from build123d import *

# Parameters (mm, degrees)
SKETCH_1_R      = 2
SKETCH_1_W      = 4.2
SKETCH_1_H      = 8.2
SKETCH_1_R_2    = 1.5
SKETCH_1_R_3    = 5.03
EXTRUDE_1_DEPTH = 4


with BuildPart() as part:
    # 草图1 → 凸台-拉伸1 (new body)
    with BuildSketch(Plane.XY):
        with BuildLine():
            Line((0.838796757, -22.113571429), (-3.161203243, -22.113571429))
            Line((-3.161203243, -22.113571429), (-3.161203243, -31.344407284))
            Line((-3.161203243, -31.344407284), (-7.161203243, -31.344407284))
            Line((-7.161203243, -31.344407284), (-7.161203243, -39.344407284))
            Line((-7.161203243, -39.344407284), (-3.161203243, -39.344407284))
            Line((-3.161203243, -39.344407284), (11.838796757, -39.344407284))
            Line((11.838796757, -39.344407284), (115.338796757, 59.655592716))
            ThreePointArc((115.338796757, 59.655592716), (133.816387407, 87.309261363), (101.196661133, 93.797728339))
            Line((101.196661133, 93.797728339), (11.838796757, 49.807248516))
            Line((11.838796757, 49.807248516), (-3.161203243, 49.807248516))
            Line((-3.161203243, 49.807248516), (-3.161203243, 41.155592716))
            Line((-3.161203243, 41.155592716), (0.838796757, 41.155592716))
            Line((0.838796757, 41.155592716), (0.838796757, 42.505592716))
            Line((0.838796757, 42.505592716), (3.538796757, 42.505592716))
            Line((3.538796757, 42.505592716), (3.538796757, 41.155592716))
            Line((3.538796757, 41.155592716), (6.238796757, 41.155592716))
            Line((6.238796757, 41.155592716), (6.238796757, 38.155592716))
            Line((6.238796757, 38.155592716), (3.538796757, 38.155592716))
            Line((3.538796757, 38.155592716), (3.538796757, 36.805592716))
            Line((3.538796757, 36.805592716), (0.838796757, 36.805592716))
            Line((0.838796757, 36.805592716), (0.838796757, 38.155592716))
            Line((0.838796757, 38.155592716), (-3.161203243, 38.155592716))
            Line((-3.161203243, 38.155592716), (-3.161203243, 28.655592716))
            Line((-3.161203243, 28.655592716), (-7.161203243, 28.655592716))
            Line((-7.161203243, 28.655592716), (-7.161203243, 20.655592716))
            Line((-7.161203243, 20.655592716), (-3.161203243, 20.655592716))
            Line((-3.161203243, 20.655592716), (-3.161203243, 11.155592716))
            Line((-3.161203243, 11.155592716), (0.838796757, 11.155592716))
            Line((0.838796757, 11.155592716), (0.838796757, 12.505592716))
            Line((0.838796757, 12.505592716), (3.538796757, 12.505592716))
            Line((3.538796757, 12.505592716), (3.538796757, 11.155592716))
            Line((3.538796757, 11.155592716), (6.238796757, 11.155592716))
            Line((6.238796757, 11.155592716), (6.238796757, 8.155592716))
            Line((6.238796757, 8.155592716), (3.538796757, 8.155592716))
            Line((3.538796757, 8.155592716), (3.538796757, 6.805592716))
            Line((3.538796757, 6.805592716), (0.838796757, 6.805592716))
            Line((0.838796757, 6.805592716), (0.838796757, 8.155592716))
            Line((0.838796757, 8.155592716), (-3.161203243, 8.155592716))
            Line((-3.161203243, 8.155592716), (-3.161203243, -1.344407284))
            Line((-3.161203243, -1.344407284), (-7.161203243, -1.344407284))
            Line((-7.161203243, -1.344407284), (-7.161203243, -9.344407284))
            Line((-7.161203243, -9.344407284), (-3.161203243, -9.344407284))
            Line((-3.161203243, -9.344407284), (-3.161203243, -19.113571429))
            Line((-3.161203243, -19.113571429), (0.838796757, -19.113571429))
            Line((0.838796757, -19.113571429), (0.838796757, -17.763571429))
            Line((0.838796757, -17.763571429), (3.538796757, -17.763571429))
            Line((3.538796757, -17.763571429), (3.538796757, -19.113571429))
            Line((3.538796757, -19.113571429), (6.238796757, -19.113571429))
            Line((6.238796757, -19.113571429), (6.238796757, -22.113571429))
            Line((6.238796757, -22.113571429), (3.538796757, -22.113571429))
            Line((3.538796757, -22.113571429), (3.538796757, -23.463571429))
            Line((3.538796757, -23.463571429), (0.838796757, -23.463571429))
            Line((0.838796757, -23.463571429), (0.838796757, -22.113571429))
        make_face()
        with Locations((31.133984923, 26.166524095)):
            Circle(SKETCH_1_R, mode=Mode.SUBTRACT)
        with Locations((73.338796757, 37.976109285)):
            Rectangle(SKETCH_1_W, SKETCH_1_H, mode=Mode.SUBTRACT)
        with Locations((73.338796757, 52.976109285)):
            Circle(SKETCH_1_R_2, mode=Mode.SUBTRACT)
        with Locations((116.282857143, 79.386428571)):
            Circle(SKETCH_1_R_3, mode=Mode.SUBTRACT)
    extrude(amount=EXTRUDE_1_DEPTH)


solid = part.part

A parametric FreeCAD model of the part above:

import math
import FreeCAD as App
import Part
import Sketcher
from FreeCAD import Vector
Q = App.Units.Quantity

doc = App.newDocument("Part")
body = doc.addObject("PartDesign::Body", "Body")

sketch1 = body.newObject("Sketcher::SketchObject", "Sketch")
sketch1.AttachmentSupport = (doc.getObject("XY_Plane"), [""])
sketch1.MapMode = "FlatFace"
sketch1.addGeometry(Part.LineSegment(Vector(0.8, -22.1, 0), Vector(-3.2, -22.1, 0)), False)
sketch1.addGeometry(Part.LineSegment(Vector(-3.2, -22.1, 0), Vector(-3.2, -31.3, 0)), False)
sketch1.addGeometry(Part.LineSegment(Vector(-3.2, -31.3, 0), Vector(-7.2, -31.3, 0)), False)
sketch1.addGeometry(Part.LineSegment(Vector(-7.2, -31.3, 0), Vector(-7.2, -39.3, 0)), False)
sketch1.addGeometry(Part.LineSegment(Vector(-7.2, -39.3, 0), Vector(11.8, -39.3, 0)), False)
sketch1.addGeometry(Part.LineSegment(Vector(11.8, -39.3, 0), Vector(115.3, 59.7, 0)), False)
sketch1.addGeometry(Part.ArcOfCircle(Part.Circle(Vector(115.3, 79.7, 0), Vector(0, 0, 1), 20), math.radians(-90), math.radians(135)), False)
sketch1.addGeometry(Part.LineSegment(Vector(101.2, 93.8, 0), Vector(11.8, 49.8, 0)), False)
sketch1.addGeometry(Part.LineSegment(Vector(11.8, 49.8, 0), Vector(-3.2, 49.8, 0)), False)
sketch1.addGeometry(Part.LineSegment(Vector(-3.2, 49.8, 0), Vector(-3.2, 41.2, 0)), False)
sketch1.addGeometry(Part.LineSegment(Vector(-3.2, 41.2, 0), Vector(0.8, 41.2, 0)), False)
sketch1.addGeometry(Part.LineSegment(Vector(0.8, 41.2, 0), Vector(0.8, 42.5, 0)), False)
sketch1.addGeometry(Part.LineSegment(Vector(0.8, 42.5, 0), Vector(3.5, 42.5, 0)), False)
sketch1.addGeometry(Part.LineSegment(Vector(3.5, 42.5, 0), Vector(3.5, 41.2, 0)), False)
sketch1.addGeometry(Part.LineSegment(Vector(3.5, 41.2, 0), Vector(6.2, 41.2, 0)), False)
sketch1.addGeometry(Part.LineSegment(Vector(6.2, 41.2, 0), Vector(6.2, 38.2, 0)), False)
sketch1.addGeometry(Part.LineSegment(Vector(6.2, 38.2, 0), Vector(3.5, 38.2, 0)), False)
sketch1.addGeometry(Part.LineSegment(Vector(3.5, 38.2, 0), Vector(3.5, 36.8, 0)), False)
sketch1.addGeometry(Part.LineSegment(Vector(3.5, 36.8, 0), Vector(0.8, 36.8, 0)), False)
sketch1.addGeometry(Part.LineSegment(Vector(0.8, 36.8, 0), Vector(0.8, 38.2, 0)), False)
sketch1.addGeometry(Part.LineSegment(Vector(0.8, 38.2, 0), Vector(-3.2, 38.2, 0)), False)
sketch1.addGeometry(Part.LineSegment(Vector(-3.2, 38.2, 0), Vector(-3.2, 28.7, 0)), False)
sketch1.addGeometry(Part.LineSegment(Vector(-3.2, 28.7, 0), Vector(-7.2, 28.7, 0)), False)
sketch1.addGeometry(Part.LineSegment(Vector(-7.2, 28.7, 0), Vector(-7.2, 20.7, 0)), False)
sketch1.addGeometry(Part.LineSegment(Vector(-7.2, 20.7, 0), Vector(-3.2, 20.7, 0)), False)
sketch1.addGeometry(Part.LineSegment(Vector(-3.2, 20.7, 0), Vector(-3.2, 11.2, 0)), False)
sketch1.addGeometry(Part.LineSegment(Vector(-3.2, 11.2, 0), Vector(0.8, 11.2, 0)), False)
sketch1.addGeometry(Part.LineSegment(Vector(0.8, 11.2, 0), Vector(0.8, 12.5, 0)), False)
sketch1.addGeometry(Part.LineSegment(Vector(0.8, 12.5, 0), Vector(3.5, 12.5, 0)), False)
sketch1.addGeometry(Part.LineSegment(Vector(3.5, 12.5, 0), Vector(3.5, 11.2, 0)), False)
sketch1.addGeometry(Part.LineSegment(Vector(3.5, 11.2, 0), Vector(6.2, 11.2, 0)), False)
sketch1.addGeometry(Part.LineSegment(Vector(6.2, 11.2, 0), Vector(6.2, 8.2, 0)), False)
sketch1.addGeometry(Part.LineSegment(Vector(6.2, 8.2, 0), Vector(3.5, 8.2, 0)), False)
sketch1.addGeometry(Part.LineSegment(Vector(3.5, 8.2, 0), Vector(3.5, 6.8, 0)), False)
sketch1.addGeometry(Part.LineSegment(Vector(3.5, 6.8, 0), Vector(0.8, 6.8, 0)), False)
sketch1.addGeometry(Part.LineSegment(Vector(0.8, 6.8, 0), Vector(0.8, 8.2, 0)), False)
sketch1.addGeometry(Part.LineSegment(Vector(0.8, 8.2, 0), Vector(-3.2, 8.2, 0)), False)
sketch1.addGeometry(Part.LineSegment(Vector(-3.2, 8.2, 0), Vector(-3.2, -1.3, 0)), False)
sketch1.addGeometry(Part.LineSegment(Vector(-3.2, -1.3, 0), Vector(-7.2, -1.3, 0)), False)
sketch1.addGeometry(Part.LineSegment(Vector(-7.2, -1.3, 0), Vector(-7.2, -9.3, 0)), False)
sketch1.addGeometry(Part.LineSegment(Vector(-7.2, -9.3, 0), Vector(-3.2, -9.3, 0)), False)
sketch1.addGeometry(Part.LineSegment(Vector(-3.2, -9.3, 0), Vector(-3.2, -19.1, 0)), False)
sketch1.addGeometry(Part.LineSegment(Vector(-3.2, -19.1, 0), Vector(0.8, -19.1, 0)), False)
sketch1.addGeometry(Part.LineSegment(Vector(0.8, -19.1, 0), Vector(0.8, -17.8, 0)), False)
sketch1.addGeometry(Part.LineSegment(Vector(0.8, -17.8, 0), Vector(3.5, -17.8, 0)), False)
sketch1.addGeometry(Part.LineSegment(Vector(3.5, -17.8, 0), Vector(3.5, -19.1, 0)), False)
sketch1.addGeometry(Part.LineSegment(Vector(3.5, -19.1, 0), Vector(6.2, -19.1, 0)), False)
sketch1.addGeometry(Part.LineSegment(Vector(6.2, -19.1, 0), Vector(6.2, -22.1, 0)), False)
sketch1.addGeometry(Part.LineSegment(Vector(6.2, -22.1, 0), Vector(3.5, -22.1, 0)), False)
sketch1.addGeometry(Part.LineSegment(Vector(3.5, -22.1, 0), Vector(3.5, -23.5, 0)), False)
sketch1.addGeometry(Part.LineSegment(Vector(3.5, -23.5, 0), Vector(0.8, -23.5, 0)), False)
sketch1.addGeometry(Part.LineSegment(Vector(0.8, -23.5, 0), Vector(0.8, -22.1, 0)), False)
sketch1.addGeometry(Part.Circle(Vector(31.1, 26.2, 0), Vector(0, 0, 1), 2), False)
sketch1.addGeometry(Part.LineSegment(Vector(75.4, 33.9, 0), Vector(71.2, 33.9, 0)), False)
sketch1.addGeometry(Part.LineSegment(Vector(71.2, 33.9, 0), Vector(71.2, 42.1, 0)), False)
sketch1.addGeometry(Part.LineSegment(Vector(71.2, 42.1, 0), Vector(75.4, 42.1, 0)), False)
sketch1.addGeometry(Part.LineSegment(Vector(75.4, 42.1, 0), Vector(75.4, 33.9, 0)), False)
sketch1.addGeometry(Part.Circle(Vector(73.3, 53, 0), Vector(0, 0, 1), 1.5), False)
sketch1.addGeometry(Part.Circle(Vector(116.3, 79.4, 0), Vector(0, 0, 1), 5), False)
sketch1.addConstraint(Sketcher.Constraint("Coincident", 0, 2, 1, 1))
sketch1.addConstraint(Sketcher.Constraint("Coincident", 1, 2, 2, 1))
sketch1.addConstraint(Sketcher.Constraint("Coincident", 2, 2, 3, 1))
sketch1.addConstraint(Sketcher.Constraint("Coincident", 3, 2, 4, 1))
sketch1.addConstraint(Sketcher.Constraint("Coincident", 4, 2, 5, 1))
sketch1.addConstraint(Sketcher.Constraint("Coincident", 5, 2, 6, 1))
sketch1.addConstraint(Sketcher.Constraint("Coincident", 6, 2, 7, 1))
sketch1.addConstraint(Sketcher.Constraint("Coincident", 7, 2, 8, 1))
sketch1.addConstraint(Sketcher.Constraint("Coincident", 8, 2, 9, 1))
sketch1.addConstraint(Sketcher.Constraint("Coincident", 9, 2, 10, 1))
sketch1.addConstraint(Sketcher.Constraint("Coincident", 10, 2, 11, 1))
sketch1.addConstraint(Sketcher.Constraint("Coincident", 11, 2, 12, 1))
sketch1.addConstraint(Sketcher.Constraint("Coincident", 12, 2, 13, 1))
sketch1.addConstraint(Sketcher.Constraint("Coincident", 13, 2, 14, 1))
sketch1.addConstraint(Sketcher.Constraint("Coincident", 14, 2, 15, 1))
sketch1.addConstraint(Sketcher.Constraint("Coincident", 15, 2, 16, 1))
sketch1.addConstraint(Sketcher.Constraint("Coincident", 16, 2, 17, 1))
sketch1.addConstraint(Sketcher.Constraint("Coincident", 17, 2, 18, 1))
sketch1.addConstraint(Sketcher.Constraint("Coincident", 18, 2, 19, 1))
sketch1.addConstraint(Sketcher.Constraint("Coincident", 19, 2, 20, 1))
sketch1.addConstraint(Sketcher.Constraint("Coincident", 20, 2, 21, 1))
sketch1.addConstraint(Sketcher.Constraint("Coincident", 21, 2, 22, 1))
sketch1.addConstraint(Sketcher.Constraint("Coincident", 22, 2, 23, 1))
sketch1.addConstraint(Sketcher.Constraint("Coincident", 23, 2, 24, 1))
sketch1.addConstraint(Sketcher.Constraint("Coincident", 24, 2, 25, 1))
sketch1.addConstraint(Sketcher.Constraint("Coincident", 25, 2, 26, 1))
sketch1.addConstraint(Sketcher.Constraint("Coincident", 26, 2, 27, 1))
sketch1.addConstraint(Sketcher.Constraint("Coincident", 27, 2, 28, 1))
sketch1.addConstraint(Sketcher.Constraint("Coincident", 28, 2, 29, 1))
sketch1.addConstraint(Sketcher.Constraint("Coincident", 29, 2, 30, 1))
sketch1.addConstraint(Sketcher.Constraint("Coincident", 30, 2, 31, 1))
sketch1.addConstraint(Sketcher.Constraint("Coincident", 31, 2, 32, 1))
sketch1.addConstraint(Sketcher.Constraint("Coincident", 32, 2, 33, 1))
sketch1.addConstraint(Sketcher.Constraint("Coincident", 33, 2, 34, 1))
sketch1.addConstraint(Sketcher.Constraint("Coincident", 34, 2, 35, 1))
sketch1.addConstraint(Sketcher.Constraint("Coincident", 35, 2, 36, 1))
sketch1.addConstraint(Sketcher.Constraint("Coincident", 36, 2, 37, 1))
sketch1.addConstraint(Sketcher.Constraint("Coincident", 37, 2, 38, 1))
sketch1.addConstraint(Sketcher.Constraint("Coincident", 38, 2, 39, 1))
sketch1.addConstraint(Sketcher.Constraint("Coincident", 39, 2, 40, 1))
sketch1.addConstraint(Sketcher.Constraint("Coincident", 40, 2, 41, 1))
sketch1.addConstraint(Sketcher.Constraint("Coincident", 41, 2, 42, 1))
sketch1.addConstraint(Sketcher.Constraint("Coincident", 42, 2, 43, 1))
sketch1.addConstraint(Sketcher.Constraint("Coincident", 43, 2, 44, 1))
sketch1.addConstraint(Sketcher.Constraint("Coincident", 44, 2, 45, 1))
sketch1.addConstraint(Sketcher.Constraint("Coincident", 45, 2, 46, 1))
sketch1.addConstraint(Sketcher.Constraint("Coincident", 46, 2, 47, 1))
sketch1.addConstraint(Sketcher.Constraint("Coincident", 47, 2, 48, 1))
sketch1.addConstraint(Sketcher.Constraint("Coincident", 48, 2, 49, 1))
sketch1.addConstraint(Sketcher.Constraint("Coincident", 49, 2, 50, 1))
sketch1.addConstraint(Sketcher.Constraint("Coincident", 50, 2, 51, 1))
sketch1.addConstraint(Sketcher.Constraint("Coincident", 51, 2, 0, 1))
sketch1.addConstraint(Sketcher.Constraint("Coincident", 53, 2, 54, 1))
sketch1.addConstraint(Sketcher.Constraint("Coincident", 54, 2, 55, 1))
sketch1.addConstraint(Sketcher.Constraint("Coincident", 55, 2, 56, 1))
sketch1.addConstraint(Sketcher.Constraint("Coincident", 56, 2, 53, 1))
sketch1.addConstraint(Sketcher.Constraint("Horizontal", 0))
sketch1.addConstraint(Sketcher.Constraint("Vertical", 1))
sketch1.addConstraint(Sketcher.Constraint("Horizontal", 2))
sketch1.addConstraint(Sketcher.Constraint("Vertical", 3))
sketch1.addConstraint(Sketcher.Constraint("Horizontal", 4))
sketch1.addConstraint(Sketcher.Constraint("Horizontal", 8))
sketch1.addConstraint(Sketcher.Constraint("Vertical", 9))
sketch1.addConstraint(Sketcher.Constraint("Horizontal", 10))
sketch1.addConstraint(Sketcher.Constraint("Vertical", 11))
sketch1.addConstraint(Sketcher.Constraint("Horizontal", 12))
sketch1.addConstraint(Sketcher.Constraint("Vertical", 13))
sketch1.addConstraint(Sketcher.Constraint("Horizontal", 14))
sketch1.addConstraint(Sketcher.Constraint("Vertical", 15))
sketch1.addConstraint(Sketcher.Constraint("Horizontal", 16))
sketch1.addConstraint(Sketcher.Constraint("Vertical", 17))
sketch1.addConstraint(Sketcher.Constraint("Horizontal", 18))
sketch1.addConstraint(Sketcher.Constraint("Vertical", 19))
sketch1.addConstraint(Sketcher.Constraint("Horizontal", 20))
sketch1.addConstraint(Sketcher.Constraint("Vertical", 21))
sketch1.addConstraint(Sketcher.Constraint("Horizontal", 22))
sketch1.addConstraint(Sketcher.Constraint("Vertical", 23))
sketch1.addConstraint(Sketcher.Constraint("Horizontal", 24))
sketch1.addConstraint(Sketcher.Constraint("Vertical", 25))
sketch1.addConstraint(Sketcher.Constraint("Horizontal", 26))
sketch1.addConstraint(Sketcher.Constraint("Vertical", 27))
sketch1.addConstraint(Sketcher.Constraint("Horizontal", 28))
sketch1.addConstraint(Sketcher.Constraint("Vertical", 29))
sketch1.addConstraint(Sketcher.Constraint("Horizontal", 30))
sketch1.addConstraint(Sketcher.Constraint("Vertical", 31))
sketch1.addConstraint(Sketcher.Constraint("Horizontal", 32))
sketch1.addConstraint(Sketcher.Constraint("Vertical", 33))
sketch1.addConstraint(Sketcher.Constraint("Horizontal", 34))
sketch1.addConstraint(Sketcher.Constraint("Vertical", 35))
sketch1.addConstraint(Sketcher.Constraint("Horizontal", 36))
sketch1.addConstraint(Sketcher.Constraint("Vertical", 37))
sketch1.addConstraint(Sketcher.Constraint("Horizontal", 38))
sketch1.addConstraint(Sketcher.Constraint("Vertical", 39))
sketch1.addConstraint(Sketcher.Constraint("Horizontal", 40))
sketch1.addConstraint(Sketcher.Constraint("Vertical", 41))
sketch1.addConstraint(Sketcher.Constraint("Horizontal", 42))
sketch1.addConstraint(Sketcher.Constraint("Vertical", 43))
sketch1.addConstraint(Sketcher.Constraint("Horizontal", 44))
sketch1.addConstraint(Sketcher.Constraint("Vertical", 45))
sketch1.addConstraint(Sketcher.Constraint("Horizontal", 46))
sketch1.addConstraint(Sketcher.Constraint("Vertical", 47))
sketch1.addConstraint(Sketcher.Constraint("Horizontal", 48))
sketch1.addConstraint(Sketcher.Constraint("Vertical", 49))
sketch1.addConstraint(Sketcher.Constraint("Horizontal", 50))
sketch1.addConstraint(Sketcher.Constraint("Vertical", 51))
sketch1.addConstraint(Sketcher.Constraint("Horizontal", 53))
sketch1.addConstraint(Sketcher.Constraint("Vertical", 54))
sketch1.addConstraint(Sketcher.Constraint("Horizontal", 55))
sketch1.addConstraint(Sketcher.Constraint("Vertical", 56))
sketch1.addConstraint(Sketcher.Constraint("Horizontal", 10, 2, 13, 2))
sketch1.addConstraint(Sketcher.Constraint("Horizontal", 16, 2, 19, 2))
sketch1.addConstraint(Sketcher.Constraint("Horizontal", 26, 2, 29, 2))
sketch1.addConstraint(Sketcher.Constraint("Horizontal", 32, 2, 35, 2))
sketch1.addConstraint(Sketcher.Constraint("Horizontal", 42, 2, 45, 2))
sketch1.addConstraint(Sketcher.Constraint("Horizontal", 0, 2, 47, 2))
sketch1.addConstraint(Sketcher.Constraint("Vertical", 6, 3, 5, 2))
sketch1.addConstraint(Sketcher.Constraint("Vertical", 4, 2, 7, 2))
sketch1.addConstraint(Sketcher.Constraint("Vertical", 1, 2, 8, 2))
sketch1.addConstraint(Sketcher.Constraint("Vertical", 13, 2, 16, 2))
sketch1.addConstraint(Sketcher.Constraint("Vertical", 11, 2, 18, 2))
sketch1.addConstraint(Sketcher.Constraint("Vertical", 9, 2, 20, 2))
sketch1.addConstraint(Sketcher.Constraint("Vertical", 3, 2, 22, 2))
sketch1.addConstraint(Sketcher.Constraint("Vertical", 21, 2, 24, 2))
sketch1.addConstraint(Sketcher.Constraint("Vertical", 19, 2, 26, 2))
sketch1.addConstraint(Sketcher.Constraint("Vertical", 17, 2, 28, 2))
sketch1.addConstraint(Sketcher.Constraint("Vertical", 15, 2, 30, 2))
sketch1.addConstraint(Sketcher.Constraint("Vertical", 29, 2, 32, 2))
sketch1.addConstraint(Sketcher.Constraint("Vertical", 27, 2, 34, 2))
sketch1.addConstraint(Sketcher.Constraint("Vertical", 25, 2, 36, 2))
sketch1.addConstraint(Sketcher.Constraint("Vertical", 23, 2, 38, 2))
sketch1.addConstraint(Sketcher.Constraint("Vertical", 37, 2, 40, 2))
sketch1.addConstraint(Sketcher.Constraint("Vertical", 35, 2, 42, 2))
sketch1.addConstraint(Sketcher.Constraint("Vertical", 33, 2, 44, 2))
sketch1.addConstraint(Sketcher.Constraint("Vertical", 31, 2, 46, 2))
sketch1.addConstraint(Sketcher.Constraint("Vertical", 45, 2, 48, 2))
sketch1.addConstraint(Sketcher.Constraint("Vertical", 43, 2, 50, 2))
sketch1.addConstraint(Sketcher.Constraint("Equal", 0, 2))
sketch1.addConstraint(Sketcher.Constraint("Equal", 12, 14))
sketch1.addConstraint(Sketcher.Constraint("Equal", 13, 17))
sketch1.addConstraint(Sketcher.Constraint("Equal", 3, 23))
sketch1.addConstraint(Sketcher.Constraint("Equal", 21, 25))
sketch1.addConstraint(Sketcher.Constraint("Equal", 19, 27))
sketch1.addConstraint(Sketcher.Constraint("Equal", 15, 31))
sketch1.addConstraint(Sketcher.Constraint("Equal", 29, 33))
sketch1.addConstraint(Sketcher.Constraint("Equal", 25, 37))
sketch1.addConstraint(Sketcher.Constraint("Equal", 23, 39))
sketch1.addConstraint(Sketcher.Constraint("Equal", 35, 43))
sketch1.addConstraint(Sketcher.Constraint("Equal", 31, 47))
sketch1.addConstraint(Sketcher.Constraint("Equal", 45, 49))
sketch1.addConstraint(Sketcher.Constraint("Diameter", 52, Q("4 mm")))
sketch1.addConstraint(Sketcher.Constraint("Diameter", 57, Q("3 mm")))
sketch1.addConstraint(Sketcher.Constraint("Radius", 6, Q("20 mm")))
sketch1.addConstraint(Sketcher.Constraint("Diameter", 58, Q("10.06 mm")))
sketch1.addConstraint(Sketcher.Constraint("DistanceX", 0, 2, 0, 1, Q("4 mm")))
sketch1.addConstraint(Sketcher.Constraint("DistanceX", 4, 1, 4, 2, Q("19 mm")))
sketch1.addConstraint(Sketcher.Constraint("DistanceY", 3, 2, 3, 1, Q("8 mm")))
sketch1.addConstraint(Sketcher.Constraint("DistanceY", 15, 2, 15, 1, Q("3 mm")))
sketch1.addConstraint(Sketcher.Constraint("DistanceX", 12, 1, 12, 2, Q("2.7 mm")))
sketch1.addConstraint(Sketcher.Constraint("DistanceX", 53, 2, 53, 1, Q("4.2 mm")))
sketch1.addConstraint(Sketcher.Constraint("DistanceY", 21, 2, 21, 1, Q("9.5 mm")))
sketch1.addConstraint(Sketcher.Constraint("DistanceY", 54, 1, 54, 2, Q("8.2 mm")))
sketch1.addConstraint(Sketcher.Constraint("DistanceX", 57, 3, 6, 3, Q("42 mm")))
sketch1.addConstraint(Sketcher.Constraint("DistanceY", 1, 2, 6, 3, Q("111 mm")))
sketch1.addConstraint(Sketcher.Constraint("DistanceY", 11, 1, 11, 2, Q("1.35 mm")))
sketch1.addConstraint(Sketcher.Constraint("DistanceX", 0, 2, 57, 3, Q("76.5 mm")))
sketch1.addConstraint(Sketcher.Constraint("DistanceY", 0, 2, 58, 3, Q("101.5 mm")))
sketch1.addConstraint(Sketcher.Constraint("DistanceY", 1, 2, 9, 2, Q("72.5 mm")))
sketch1.addConstraint(Sketcher.Constraint("DistanceX", 53, 2, 57, 3, Q("2.1 mm")))
sketch1.addConstraint(Sketcher.Constraint("DistanceY", 53, 2, 57, 3, Q("19.1 mm")))
sketch1.addConstraint(Sketcher.Constraint("DistanceY", 58, 3, 6, 2, Q("14.4113 mm")))
sketch1.addConstraint(Sketcher.Constraint("DistanceY", 1, 2, 1, 1, Q("9.230836 mm")))
sketch1.addConstraint(Sketcher.Constraint("DistanceY", 9, 2, 9, 1, Q("8.651656 mm")))
sketch1.addConstraint(Sketcher.Constraint("DistanceY", -1, 1, 57, 3, Q("52.976109 mm")))
sketch1.addConstraint(Sketcher.Constraint("DistanceY", -1, 1, 58, 3, Q("79.386429 mm")))
sketch1.addConstraint(Sketcher.Constraint("DistanceX", -1, 1, 6, 2, Q("101.196661 mm")))
sketch1.addConstraint(Sketcher.Constraint("DistanceX", 52, 3, 6, 3, Q("84.204812 mm")))
sketch1.addConstraint(Sketcher.Constraint("DistanceY", 52, 3, 6, 3, Q("53.489069 mm")))
sketch1.addConstraint(Sketcher.Constraint("DistanceX", 6, 3, 58, 3, Q("0.94406 mm")))
pad1 = body.newObject("PartDesign::Pad", "Pad")
pad1.Profile = sketch1
pad1.Length = 4

doc.recompute()
